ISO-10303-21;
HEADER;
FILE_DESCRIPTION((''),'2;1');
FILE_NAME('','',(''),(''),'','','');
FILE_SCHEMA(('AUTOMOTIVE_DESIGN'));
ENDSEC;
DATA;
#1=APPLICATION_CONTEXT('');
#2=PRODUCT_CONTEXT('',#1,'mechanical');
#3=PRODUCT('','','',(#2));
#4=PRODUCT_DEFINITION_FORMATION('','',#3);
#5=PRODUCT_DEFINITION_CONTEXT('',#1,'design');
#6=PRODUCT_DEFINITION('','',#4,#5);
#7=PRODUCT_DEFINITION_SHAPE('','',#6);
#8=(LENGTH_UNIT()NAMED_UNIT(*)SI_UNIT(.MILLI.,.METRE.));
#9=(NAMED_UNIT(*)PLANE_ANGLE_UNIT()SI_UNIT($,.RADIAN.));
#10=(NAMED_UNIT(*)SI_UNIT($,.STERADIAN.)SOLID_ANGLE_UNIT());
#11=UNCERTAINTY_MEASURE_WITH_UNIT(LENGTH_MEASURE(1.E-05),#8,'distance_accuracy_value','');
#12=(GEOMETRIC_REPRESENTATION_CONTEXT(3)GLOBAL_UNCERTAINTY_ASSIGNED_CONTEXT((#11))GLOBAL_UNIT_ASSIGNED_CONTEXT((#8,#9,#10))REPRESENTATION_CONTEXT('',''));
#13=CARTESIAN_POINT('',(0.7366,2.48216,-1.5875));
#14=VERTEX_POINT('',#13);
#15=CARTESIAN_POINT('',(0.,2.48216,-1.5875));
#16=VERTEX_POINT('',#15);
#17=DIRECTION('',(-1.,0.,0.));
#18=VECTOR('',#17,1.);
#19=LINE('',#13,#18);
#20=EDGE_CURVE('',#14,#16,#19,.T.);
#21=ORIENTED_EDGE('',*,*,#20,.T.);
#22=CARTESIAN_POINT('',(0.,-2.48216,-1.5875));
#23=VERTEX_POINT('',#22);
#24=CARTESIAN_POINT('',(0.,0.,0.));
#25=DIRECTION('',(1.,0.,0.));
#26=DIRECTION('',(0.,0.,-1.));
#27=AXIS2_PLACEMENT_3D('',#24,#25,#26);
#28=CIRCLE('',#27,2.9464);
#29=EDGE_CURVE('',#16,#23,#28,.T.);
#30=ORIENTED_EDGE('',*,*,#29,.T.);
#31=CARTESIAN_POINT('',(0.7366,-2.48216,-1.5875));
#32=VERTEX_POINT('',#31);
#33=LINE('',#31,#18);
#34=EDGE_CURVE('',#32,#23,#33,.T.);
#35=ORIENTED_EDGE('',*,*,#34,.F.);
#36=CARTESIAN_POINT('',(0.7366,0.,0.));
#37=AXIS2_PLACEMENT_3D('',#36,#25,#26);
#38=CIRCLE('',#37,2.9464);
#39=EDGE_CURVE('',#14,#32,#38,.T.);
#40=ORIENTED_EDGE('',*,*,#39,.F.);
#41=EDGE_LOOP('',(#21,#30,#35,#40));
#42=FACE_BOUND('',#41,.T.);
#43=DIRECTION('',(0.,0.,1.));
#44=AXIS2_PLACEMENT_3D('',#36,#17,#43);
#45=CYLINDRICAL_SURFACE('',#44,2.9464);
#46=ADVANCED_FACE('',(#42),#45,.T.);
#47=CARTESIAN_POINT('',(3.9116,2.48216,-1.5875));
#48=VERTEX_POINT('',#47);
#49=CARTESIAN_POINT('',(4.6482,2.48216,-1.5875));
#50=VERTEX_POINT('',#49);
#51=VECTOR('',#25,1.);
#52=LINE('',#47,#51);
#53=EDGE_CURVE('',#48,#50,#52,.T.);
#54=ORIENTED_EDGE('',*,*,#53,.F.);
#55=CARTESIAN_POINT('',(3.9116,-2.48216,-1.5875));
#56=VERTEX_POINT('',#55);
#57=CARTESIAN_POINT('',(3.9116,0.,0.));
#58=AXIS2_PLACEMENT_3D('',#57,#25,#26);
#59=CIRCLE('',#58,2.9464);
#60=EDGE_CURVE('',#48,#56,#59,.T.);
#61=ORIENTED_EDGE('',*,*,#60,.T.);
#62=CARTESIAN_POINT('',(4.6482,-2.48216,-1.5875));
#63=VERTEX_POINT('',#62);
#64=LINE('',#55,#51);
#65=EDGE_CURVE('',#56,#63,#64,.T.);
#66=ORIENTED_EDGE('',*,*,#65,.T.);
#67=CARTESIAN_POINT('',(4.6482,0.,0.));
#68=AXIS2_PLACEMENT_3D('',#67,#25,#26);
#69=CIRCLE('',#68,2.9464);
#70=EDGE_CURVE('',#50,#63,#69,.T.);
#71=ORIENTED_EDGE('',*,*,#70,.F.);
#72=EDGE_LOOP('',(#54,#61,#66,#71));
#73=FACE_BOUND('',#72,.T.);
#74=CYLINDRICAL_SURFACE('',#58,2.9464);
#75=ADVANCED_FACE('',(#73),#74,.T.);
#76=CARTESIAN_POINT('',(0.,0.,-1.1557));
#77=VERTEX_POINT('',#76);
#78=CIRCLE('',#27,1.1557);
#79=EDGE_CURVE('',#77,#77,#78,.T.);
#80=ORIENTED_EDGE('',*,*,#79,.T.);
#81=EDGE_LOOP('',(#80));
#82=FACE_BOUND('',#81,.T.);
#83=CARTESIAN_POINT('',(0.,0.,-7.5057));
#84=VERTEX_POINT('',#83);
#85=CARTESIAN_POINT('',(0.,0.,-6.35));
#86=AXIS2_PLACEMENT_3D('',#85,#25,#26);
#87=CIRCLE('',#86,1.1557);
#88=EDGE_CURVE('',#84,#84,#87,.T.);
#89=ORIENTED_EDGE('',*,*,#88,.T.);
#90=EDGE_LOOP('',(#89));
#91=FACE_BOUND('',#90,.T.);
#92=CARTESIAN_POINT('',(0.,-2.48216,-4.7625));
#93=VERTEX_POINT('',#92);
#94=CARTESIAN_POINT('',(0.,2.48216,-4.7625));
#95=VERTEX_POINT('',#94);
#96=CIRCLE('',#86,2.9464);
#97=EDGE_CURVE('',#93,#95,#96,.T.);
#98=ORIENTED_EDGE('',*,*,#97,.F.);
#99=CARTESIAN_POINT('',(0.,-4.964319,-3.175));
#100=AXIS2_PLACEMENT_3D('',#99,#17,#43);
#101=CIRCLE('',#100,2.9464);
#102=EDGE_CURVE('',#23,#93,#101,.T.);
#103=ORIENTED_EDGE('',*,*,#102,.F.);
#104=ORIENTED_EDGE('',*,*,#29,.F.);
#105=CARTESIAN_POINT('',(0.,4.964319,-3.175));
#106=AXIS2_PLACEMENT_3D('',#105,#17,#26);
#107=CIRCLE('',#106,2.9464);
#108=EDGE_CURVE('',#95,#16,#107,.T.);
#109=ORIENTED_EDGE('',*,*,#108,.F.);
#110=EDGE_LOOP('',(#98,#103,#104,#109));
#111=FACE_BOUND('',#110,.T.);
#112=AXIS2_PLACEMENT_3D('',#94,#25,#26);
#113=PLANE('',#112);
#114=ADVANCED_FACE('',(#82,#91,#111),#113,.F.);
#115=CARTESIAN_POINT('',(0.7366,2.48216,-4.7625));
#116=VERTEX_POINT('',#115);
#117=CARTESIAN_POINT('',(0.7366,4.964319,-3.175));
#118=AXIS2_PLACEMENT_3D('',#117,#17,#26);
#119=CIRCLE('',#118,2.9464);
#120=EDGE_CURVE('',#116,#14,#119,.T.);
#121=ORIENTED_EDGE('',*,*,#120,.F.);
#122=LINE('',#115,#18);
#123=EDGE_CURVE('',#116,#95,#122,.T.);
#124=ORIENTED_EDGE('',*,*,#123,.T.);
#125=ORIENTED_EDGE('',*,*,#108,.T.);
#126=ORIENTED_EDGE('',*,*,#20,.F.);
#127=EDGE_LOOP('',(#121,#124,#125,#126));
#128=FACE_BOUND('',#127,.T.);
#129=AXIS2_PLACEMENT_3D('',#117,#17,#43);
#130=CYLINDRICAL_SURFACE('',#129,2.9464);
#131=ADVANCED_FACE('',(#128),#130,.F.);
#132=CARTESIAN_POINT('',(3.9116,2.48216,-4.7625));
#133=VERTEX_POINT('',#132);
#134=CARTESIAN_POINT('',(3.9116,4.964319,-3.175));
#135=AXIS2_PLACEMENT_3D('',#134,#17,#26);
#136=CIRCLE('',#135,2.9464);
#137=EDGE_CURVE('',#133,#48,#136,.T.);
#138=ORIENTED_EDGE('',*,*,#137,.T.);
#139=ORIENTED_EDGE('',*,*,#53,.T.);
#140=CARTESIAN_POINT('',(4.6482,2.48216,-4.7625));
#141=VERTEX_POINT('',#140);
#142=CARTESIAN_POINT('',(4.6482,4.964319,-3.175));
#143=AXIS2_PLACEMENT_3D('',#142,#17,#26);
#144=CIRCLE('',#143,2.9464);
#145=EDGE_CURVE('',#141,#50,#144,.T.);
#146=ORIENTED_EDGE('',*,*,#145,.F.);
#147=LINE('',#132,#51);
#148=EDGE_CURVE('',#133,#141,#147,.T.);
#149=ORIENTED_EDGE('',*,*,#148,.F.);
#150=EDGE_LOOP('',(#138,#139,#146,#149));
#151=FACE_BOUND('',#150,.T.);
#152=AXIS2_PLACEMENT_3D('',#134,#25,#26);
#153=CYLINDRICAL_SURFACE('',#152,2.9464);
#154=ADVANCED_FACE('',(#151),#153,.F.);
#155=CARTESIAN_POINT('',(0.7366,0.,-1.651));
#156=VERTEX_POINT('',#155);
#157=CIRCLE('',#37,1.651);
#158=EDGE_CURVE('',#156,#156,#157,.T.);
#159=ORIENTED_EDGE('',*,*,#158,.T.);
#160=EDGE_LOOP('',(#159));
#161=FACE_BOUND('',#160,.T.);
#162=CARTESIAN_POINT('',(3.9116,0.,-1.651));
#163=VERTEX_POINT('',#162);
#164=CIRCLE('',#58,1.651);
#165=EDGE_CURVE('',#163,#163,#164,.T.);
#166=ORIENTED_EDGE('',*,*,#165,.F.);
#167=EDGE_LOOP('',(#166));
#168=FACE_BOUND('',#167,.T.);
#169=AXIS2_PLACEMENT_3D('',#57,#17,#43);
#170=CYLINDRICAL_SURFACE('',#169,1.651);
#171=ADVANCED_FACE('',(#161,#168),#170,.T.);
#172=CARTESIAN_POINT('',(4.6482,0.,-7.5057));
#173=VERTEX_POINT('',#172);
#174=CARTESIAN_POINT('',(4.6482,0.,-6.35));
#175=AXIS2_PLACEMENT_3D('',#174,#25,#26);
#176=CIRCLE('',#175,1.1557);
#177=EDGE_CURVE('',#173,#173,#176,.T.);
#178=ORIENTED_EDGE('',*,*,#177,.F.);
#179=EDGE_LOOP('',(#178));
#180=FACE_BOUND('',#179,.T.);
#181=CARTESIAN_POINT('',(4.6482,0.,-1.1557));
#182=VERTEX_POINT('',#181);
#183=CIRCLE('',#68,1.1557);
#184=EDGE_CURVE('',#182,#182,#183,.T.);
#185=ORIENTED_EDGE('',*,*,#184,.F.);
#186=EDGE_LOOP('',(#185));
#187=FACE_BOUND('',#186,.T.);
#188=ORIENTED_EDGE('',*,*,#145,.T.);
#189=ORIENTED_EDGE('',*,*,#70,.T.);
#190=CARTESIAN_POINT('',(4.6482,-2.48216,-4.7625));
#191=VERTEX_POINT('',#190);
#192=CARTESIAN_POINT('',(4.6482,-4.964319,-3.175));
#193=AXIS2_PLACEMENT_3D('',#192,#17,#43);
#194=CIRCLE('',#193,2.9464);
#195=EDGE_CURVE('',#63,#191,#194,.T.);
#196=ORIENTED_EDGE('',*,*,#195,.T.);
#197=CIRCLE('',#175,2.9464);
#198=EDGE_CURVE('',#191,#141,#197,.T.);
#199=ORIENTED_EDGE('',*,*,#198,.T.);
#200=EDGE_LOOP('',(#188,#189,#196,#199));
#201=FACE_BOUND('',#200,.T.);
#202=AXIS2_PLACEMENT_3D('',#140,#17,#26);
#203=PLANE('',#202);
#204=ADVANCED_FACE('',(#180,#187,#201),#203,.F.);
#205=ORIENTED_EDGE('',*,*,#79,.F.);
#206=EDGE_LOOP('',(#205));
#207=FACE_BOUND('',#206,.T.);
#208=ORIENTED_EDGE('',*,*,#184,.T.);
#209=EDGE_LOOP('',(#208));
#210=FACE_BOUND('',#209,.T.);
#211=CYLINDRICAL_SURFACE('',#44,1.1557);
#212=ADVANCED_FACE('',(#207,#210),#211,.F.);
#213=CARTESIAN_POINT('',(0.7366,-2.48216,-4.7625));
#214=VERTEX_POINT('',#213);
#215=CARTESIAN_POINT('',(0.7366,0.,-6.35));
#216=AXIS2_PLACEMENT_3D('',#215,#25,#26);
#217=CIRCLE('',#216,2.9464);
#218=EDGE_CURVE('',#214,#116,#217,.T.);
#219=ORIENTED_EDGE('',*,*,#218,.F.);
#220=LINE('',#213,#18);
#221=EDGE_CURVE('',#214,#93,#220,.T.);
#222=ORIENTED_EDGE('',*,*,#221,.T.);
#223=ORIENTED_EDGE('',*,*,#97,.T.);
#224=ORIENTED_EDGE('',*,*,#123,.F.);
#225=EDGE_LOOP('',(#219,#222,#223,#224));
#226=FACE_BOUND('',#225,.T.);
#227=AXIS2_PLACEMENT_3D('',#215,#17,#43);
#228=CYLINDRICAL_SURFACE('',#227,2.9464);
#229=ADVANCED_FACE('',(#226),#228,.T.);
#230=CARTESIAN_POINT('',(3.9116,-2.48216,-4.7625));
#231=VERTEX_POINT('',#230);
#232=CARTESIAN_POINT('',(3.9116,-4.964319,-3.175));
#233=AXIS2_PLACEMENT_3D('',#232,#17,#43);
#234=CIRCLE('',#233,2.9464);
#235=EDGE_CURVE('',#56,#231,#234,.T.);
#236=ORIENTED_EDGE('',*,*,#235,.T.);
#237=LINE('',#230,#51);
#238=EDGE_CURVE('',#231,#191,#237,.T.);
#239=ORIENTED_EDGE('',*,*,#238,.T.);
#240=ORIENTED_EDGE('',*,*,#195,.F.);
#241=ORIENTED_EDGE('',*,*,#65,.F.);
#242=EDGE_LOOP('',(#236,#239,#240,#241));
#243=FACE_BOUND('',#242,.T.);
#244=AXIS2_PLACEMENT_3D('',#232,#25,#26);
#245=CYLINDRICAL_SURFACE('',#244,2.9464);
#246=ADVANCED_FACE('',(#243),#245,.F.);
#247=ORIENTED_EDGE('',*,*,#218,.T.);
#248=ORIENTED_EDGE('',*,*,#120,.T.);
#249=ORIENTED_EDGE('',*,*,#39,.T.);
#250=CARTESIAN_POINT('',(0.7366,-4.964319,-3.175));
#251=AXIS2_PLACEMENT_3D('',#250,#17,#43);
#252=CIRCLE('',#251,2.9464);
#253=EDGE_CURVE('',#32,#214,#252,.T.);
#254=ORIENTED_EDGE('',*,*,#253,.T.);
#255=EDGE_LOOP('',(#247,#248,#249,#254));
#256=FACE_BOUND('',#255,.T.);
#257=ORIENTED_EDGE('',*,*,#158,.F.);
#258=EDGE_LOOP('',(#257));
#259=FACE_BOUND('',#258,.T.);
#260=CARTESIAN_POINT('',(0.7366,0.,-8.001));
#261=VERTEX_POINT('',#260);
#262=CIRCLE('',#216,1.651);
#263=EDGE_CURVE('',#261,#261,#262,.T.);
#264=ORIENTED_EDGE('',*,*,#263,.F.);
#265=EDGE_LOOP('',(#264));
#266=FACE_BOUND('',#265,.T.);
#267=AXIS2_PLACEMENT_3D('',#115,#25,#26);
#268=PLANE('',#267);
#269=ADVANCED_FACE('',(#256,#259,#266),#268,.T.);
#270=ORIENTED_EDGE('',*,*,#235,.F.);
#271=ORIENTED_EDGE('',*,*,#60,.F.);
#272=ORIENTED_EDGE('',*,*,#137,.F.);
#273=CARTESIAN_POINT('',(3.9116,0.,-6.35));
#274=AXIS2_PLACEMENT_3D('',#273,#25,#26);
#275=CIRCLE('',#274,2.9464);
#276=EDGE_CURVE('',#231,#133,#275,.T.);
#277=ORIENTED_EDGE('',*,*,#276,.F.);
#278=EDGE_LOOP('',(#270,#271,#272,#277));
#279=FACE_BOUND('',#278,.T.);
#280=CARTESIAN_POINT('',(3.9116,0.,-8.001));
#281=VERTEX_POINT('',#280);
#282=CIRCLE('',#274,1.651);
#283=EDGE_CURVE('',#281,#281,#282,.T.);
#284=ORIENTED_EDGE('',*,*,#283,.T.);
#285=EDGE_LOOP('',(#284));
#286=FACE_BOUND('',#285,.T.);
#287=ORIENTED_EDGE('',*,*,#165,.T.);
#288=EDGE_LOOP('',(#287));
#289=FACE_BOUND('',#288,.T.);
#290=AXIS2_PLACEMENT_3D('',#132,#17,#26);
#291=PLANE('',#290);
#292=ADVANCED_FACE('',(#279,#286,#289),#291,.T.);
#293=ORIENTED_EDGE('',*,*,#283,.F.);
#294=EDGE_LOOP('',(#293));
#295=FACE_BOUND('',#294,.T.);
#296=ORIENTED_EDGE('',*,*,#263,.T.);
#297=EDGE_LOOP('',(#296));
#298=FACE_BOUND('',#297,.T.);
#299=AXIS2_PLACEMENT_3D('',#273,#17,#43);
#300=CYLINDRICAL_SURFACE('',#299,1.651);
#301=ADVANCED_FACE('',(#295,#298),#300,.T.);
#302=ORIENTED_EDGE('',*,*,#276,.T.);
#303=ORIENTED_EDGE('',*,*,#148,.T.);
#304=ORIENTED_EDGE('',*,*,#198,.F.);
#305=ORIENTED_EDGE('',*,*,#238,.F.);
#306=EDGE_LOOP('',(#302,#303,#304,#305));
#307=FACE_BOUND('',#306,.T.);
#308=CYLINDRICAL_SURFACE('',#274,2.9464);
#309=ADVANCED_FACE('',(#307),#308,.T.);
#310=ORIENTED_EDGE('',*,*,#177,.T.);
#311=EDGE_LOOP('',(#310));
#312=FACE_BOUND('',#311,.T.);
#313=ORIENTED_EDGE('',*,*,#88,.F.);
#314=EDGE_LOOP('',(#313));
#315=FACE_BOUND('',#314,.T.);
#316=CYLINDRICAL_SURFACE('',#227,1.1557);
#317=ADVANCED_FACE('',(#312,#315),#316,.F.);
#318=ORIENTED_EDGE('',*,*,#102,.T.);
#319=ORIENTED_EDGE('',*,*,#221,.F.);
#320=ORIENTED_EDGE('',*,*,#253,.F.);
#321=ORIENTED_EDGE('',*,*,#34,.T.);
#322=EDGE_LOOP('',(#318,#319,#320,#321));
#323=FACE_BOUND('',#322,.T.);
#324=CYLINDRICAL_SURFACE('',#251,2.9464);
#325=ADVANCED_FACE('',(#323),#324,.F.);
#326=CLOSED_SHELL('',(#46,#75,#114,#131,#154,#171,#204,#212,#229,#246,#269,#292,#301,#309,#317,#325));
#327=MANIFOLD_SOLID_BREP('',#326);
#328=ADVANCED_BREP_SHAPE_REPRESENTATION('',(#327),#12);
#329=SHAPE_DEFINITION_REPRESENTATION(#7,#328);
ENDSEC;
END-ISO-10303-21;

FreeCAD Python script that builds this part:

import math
import FreeCAD as App
import Part
import Sketcher

V = App.Vector
Q = App.Units.Quantity

doc = App.newDocument("Part")
params = doc.addObject("Spreadsheet::Sheet", "Params")
for row, (alias, value) in enumerate([
    ("sketch1_diameter", "0.091 in"),
    ("sketch1_radius", "0.116 in"),
    ("pad1_length", "0.029 in"),
    ("sketch2_diameter", "0.13 in"),
    ("sketch2_diameter2", "0.091 in"),
    ("pad2_length", "0.125 in"),
], start=1):
    params.set(f"A{row}", alias)
    params.set(f"B{row}", "=" + value)
    params.setAlias(f"B{row}", alias)

body = doc.addObject("PartDesign::Body", "Body")

# Sketch on YZ plane
sketch1 = doc.addObject("Sketcher::SketchObject", "Sketch")
body.addObject(sketch1)
sketch1.AttachmentSupport = (doc.YZ_Plane, [""])
sketch1.MapMode = "FlatFace"
sketch1.addGeometry([
    Part.ArcOfCircle(Part.Circle(V(0, 0, 0), V(0, 0, 1), 2.9464), math.radians(-32.601518), math.radians(212.601518)),  # 0
    Part.ArcOfCircle(Part.Circle(V(-4.964319, -3.175, 0), V(0, 0, 1), 2.9464), math.radians(-32.601518), math.radians(32.601518)),  # 1
    Part.ArcOfCircle(Part.Circle(V(0, -6.35, 0), V(0, 0, 1), 2.9464), math.radians(147.398482), math.radians(392.601518)),  # 2
    Part.ArcOfCircle(Part.Circle(V(4.964319, -3.175, 0), V(0, 0, 1), 2.9464), math.radians(147.398482), math.radians(212.601518)),  # 3
    Part.Circle(V(0, 0, 0), V(0, 0, 1), 1.1557),  # 4
    Part.Circle(V(0, -6.35, 0), V(0, 0, 1), 1.1557),  # 5
], False)
sketch1.addConstraint([
    Sketcher.Constraint("Tangent", 0, 2, 1, 2),
    Sketcher.Constraint("Tangent", 1, 1, 2, 1),
    Sketcher.Constraint("Tangent", 2, 2, 3, 2),
    Sketcher.Constraint("Tangent", 3, 1, 0, 1),
    Sketcher.Constraint("Coincident", 0, 3, -1, 1),
    Sketcher.Constraint("Coincident", 4, 3, -1, 1),
    Sketcher.Constraint("Coincident", 5, 3, 2, 3),
    Sketcher.Constraint("Equal", 0, 1),
    Sketcher.Constraint("Equal", 1, 2),
    Sketcher.Constraint("Equal", 2, 3),
    Sketcher.Constraint("Equal", 4, 5),
    Sketcher.Constraint("PointOnObject", 2, 3, -2),
    Sketcher.Constraint("Diameter", 4, Q("0.091 in")),
    Sketcher.Constraint("Radius", 0, Q("0.116 in")),
    Sketcher.Constraint("DistanceY", 2, 3, -1, 1, Q("0.25 in")),
])
sketch1.setExpression("Constraints[12]", "Params.sketch1_diameter")
sketch1.setExpression("Constraints[13]", "Params.sketch1_radius")
pad1 = doc.addObject("PartDesign::Pad", "Pad")
body.addObject(pad1)
pad1.Profile = sketch1
pad1.setExpression("Length", "Params.pad1_length")

# Sketch on YZ plane
sketch2 = doc.addObject("Sketcher::SketchObject", "Sketch001")
body.addObject(sketch2)
sketch2.AttachmentSupport = (doc.YZ_Plane, [""])
sketch2.MapMode = "FlatFace"
sketch2.AttachmentOffset = App.Placement(V(0, 0, 0.029 * 25.4), App.Rotation())
sketch2.addGeometry([
    Part.Circle(V(0, 0, 0), V(0, 0, 1), 1.651),
    Part.Circle(V(0, 0, 0), V(0, 0, 1), 1.1557),
    Part.Circle(V(0, -6.35, 0), V(0, 0, 1), 1.651),
    Part.Circle(V(0, -6.35, 0), V(0, 0, 1), 1.1557),
], False)
sketch2.addConstraint([
    Sketcher.Constraint("Coincident", 0, 3, -1, 1),
    Sketcher.Constraint("Coincident", 1, 3, -1, 1),
    Sketcher.Constraint("Coincident", 3, 3, 2, 3),
    Sketcher.Constraint("Equal", 0, 2),
    Sketcher.Constraint("Equal", 1, 3),
    Sketcher.Constraint("PointOnObject", 2, 3, -2),
    Sketcher.Constraint("Diameter", 0, Q("0.13 in")),
    Sketcher.Constraint("Diameter", 1, Q("0.091 in")),
    Sketcher.Constraint("DistanceY", 2, 3, -1, 1, Q("0.25 in")),
])
sketch2.setExpression("Constraints[6]", "Params.sketch2_diameter")
sketch2.setExpression("Constraints[7]", "Params.sketch2_diameter2")
pad2 = doc.addObject("PartDesign::Pad", "Pad001")
body.addObject(pad2)
pad2.Profile = sketch2
pad2.setExpression("Length", "Params.pad2_length")
doc.recompute()

datumplane = doc.addObject("PartDesign::Plane", "DatumPlane")
body.addObject(datumplane)
datumplane.AttachmentSupport = (doc.YZ_Plane, [""])
datumplane.MapMode = "FlatFace"
datumplane.AttachmentOffset = App.Placement(V(0, 0, 0.0915 * 25.4), App.Rotation())
mirrored = doc.addObject("PartDesign::Mirrored", "Mirrored")
body.addObject(mirrored)
mirrored.Originals = [pad1]
mirrored.MirrorPlane = (datumplane, [""])
body.Tip = mirrored

doc.recompute()
